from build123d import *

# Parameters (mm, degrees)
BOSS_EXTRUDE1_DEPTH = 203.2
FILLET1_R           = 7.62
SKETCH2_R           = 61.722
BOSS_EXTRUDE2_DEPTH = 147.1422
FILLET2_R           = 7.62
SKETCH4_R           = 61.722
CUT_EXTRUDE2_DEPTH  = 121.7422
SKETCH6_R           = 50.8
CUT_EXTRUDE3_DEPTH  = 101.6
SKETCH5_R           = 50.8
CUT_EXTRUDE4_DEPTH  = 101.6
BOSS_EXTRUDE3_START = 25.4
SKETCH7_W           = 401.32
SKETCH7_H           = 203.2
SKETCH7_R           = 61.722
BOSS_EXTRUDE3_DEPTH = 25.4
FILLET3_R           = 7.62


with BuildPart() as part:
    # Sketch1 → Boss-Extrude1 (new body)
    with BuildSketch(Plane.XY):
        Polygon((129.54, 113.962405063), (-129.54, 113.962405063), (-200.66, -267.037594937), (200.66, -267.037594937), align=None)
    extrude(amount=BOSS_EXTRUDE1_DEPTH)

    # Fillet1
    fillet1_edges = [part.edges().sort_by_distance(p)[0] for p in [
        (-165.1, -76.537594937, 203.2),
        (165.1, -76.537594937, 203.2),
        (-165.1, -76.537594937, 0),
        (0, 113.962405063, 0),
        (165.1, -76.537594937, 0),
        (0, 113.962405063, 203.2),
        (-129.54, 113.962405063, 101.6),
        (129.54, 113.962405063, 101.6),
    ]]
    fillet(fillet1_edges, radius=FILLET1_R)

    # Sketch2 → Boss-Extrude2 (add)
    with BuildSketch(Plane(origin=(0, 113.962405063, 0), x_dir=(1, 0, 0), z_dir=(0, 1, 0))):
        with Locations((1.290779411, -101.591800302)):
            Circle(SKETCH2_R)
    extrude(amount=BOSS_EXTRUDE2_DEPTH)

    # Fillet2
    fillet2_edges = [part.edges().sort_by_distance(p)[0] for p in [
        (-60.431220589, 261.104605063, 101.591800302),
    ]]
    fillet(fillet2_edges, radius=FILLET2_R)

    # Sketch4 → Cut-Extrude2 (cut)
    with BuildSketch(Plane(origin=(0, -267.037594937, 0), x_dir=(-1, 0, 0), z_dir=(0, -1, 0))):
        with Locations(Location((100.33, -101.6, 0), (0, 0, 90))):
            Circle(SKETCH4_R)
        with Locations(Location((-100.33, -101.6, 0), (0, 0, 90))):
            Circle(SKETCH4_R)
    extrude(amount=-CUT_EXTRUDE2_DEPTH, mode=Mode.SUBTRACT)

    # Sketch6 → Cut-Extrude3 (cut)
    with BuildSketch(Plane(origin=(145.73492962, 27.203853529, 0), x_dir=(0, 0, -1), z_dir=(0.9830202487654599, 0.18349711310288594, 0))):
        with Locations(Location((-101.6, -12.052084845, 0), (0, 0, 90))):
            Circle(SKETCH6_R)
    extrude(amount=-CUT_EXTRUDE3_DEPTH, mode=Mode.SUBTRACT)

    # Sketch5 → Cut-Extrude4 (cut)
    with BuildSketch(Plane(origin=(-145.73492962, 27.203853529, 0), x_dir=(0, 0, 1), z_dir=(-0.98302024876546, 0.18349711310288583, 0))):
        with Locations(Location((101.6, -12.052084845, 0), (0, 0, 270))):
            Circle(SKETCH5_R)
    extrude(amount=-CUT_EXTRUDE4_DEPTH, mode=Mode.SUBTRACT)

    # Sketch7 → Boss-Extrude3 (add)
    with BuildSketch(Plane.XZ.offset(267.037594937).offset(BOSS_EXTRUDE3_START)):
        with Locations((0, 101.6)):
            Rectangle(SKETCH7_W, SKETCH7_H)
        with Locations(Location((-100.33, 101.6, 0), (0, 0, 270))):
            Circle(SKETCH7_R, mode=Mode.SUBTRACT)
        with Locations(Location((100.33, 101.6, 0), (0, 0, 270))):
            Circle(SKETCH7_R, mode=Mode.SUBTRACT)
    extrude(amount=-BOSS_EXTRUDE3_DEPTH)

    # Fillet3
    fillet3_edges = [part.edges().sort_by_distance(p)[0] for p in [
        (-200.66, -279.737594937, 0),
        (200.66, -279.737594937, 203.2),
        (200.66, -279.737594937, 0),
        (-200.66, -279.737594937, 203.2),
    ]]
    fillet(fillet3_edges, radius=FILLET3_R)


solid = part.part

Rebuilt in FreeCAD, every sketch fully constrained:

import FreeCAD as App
import Part
import Sketcher

V = App.Vector
Q = App.Units.Quantity


def edges_at(feature, points):
    """Names of the edges that pass closest to the given points."""
    edges = feature.Shape.Edges
    near = lambda p: min(range(len(edges)), key=lambda i: edges[i].distToShape(Part.Vertex(*p))[0])
    return sorted({f"Edge{near(p) + 1}" for p in points})


def add_polygon(sketch, points):
    """Adds a closed chain of lines whose ends are joined by coincident constraints."""
    first, n = sketch.GeometryCount, len(points)
    for a, b in zip(points, points[1:] + points[:1]):
        sketch.addGeometry(Part.LineSegment(App.Vector(*a, 0), App.Vector(*b, 0)), False)
    for i in range(n):
        sketch.addConstraint(Sketcher.Constraint("Coincident", first + i, 2, first + (i + 1) % n, 1))

doc = App.newDocument("Part")
body = doc.addObject("PartDesign::Body", "Body")

sketch1 = doc.addObject("Sketcher::SketchObject", "Sketch")
body.addObject(sketch1)
sketch1.AttachmentSupport = (doc.XY_Plane, [""])
sketch1.MapMode = "FlatFace"
add_polygon(sketch1, [(130, 114), (-130, 114), (-201, -267), (201, -267)])
sketch1.addConstraint([
    Sketcher.Constraint("Horizontal", 0),
    Sketcher.Constraint("Horizontal", 2),
    Sketcher.Constraint("Equal", 1, 3),
    Sketcher.Constraint("DistanceX", 0, 2, 0, 1, Q("10.2 in")),
    Sketcher.Constraint("DistanceX", 2, 1, 2, 2, Q("15.8 in")),
    Sketcher.Constraint("DistanceY", 1, 2, 0, 2, Q("15 in")),
    Sketcher.Constraint("DistanceX", 0, 2, -1, 1, Q("5.1 in")),
    Sketcher.Constraint("DistanceY", -1, 1, 0, 2, 113.962405),
])
pad1 = doc.addObject("PartDesign::Pad", "Pad")
body.addObject(pad1)
pad1.Profile = sketch1
pad1.Length = Q("8 in")
doc.recompute()

fillet = doc.addObject("PartDesign::Fillet", "Fillet")
body.addObject(fillet)
fillet.Base = (pad1, edges_at(pad1, [
    (-165.1, -76.538, 203.2),
    (165.1, -76.538, 203.2),
    (-165.1, -76.538, 0),
    (0, 113.962, 0),
    (165.1, -76.538, 0),
    (0, 113.962, 203.2),
    (-129.54, 113.962, 101.6),
    (129.54, 113.962, 101.6),
]))
fillet.Radius = Q("0.3 in")

sketch2 = doc.addObject("Sketcher::SketchObject", "Sketch001")
body.addObject(sketch2)
sketch2.AttachmentSupport = (doc.XZ_Plane, [""])
sketch2.MapMode = "FlatFace"
sketch2.AttachmentOffset = App.Placement(V(0, 0, -113.962405), App.Rotation())
sketch2.addGeometry(Part.Circle(V(1, 102, 0), V(0, 0, 1), 62), False)
sketch2.addConstraint([
    Sketcher.Constraint("Diameter", 0, Q("4.86 in")),
    Sketcher.Constraint("DistanceY", -1, 1, 0, 3, 101.5918),
    Sketcher.Constraint("DistanceX", -1, 1, 0, 3, 1.290779),
])
pad2 = doc.addObject("PartDesign::Pad", "Pad001")
body.addObject(pad2)
pad2.Profile = sketch2
pad2.Length = Q("5.793 in")
pad2.Reversed = True
doc.recompute()

fillet2 = doc.addObject("PartDesign::Fillet", "Fillet001")
body.addObject(fillet2)
fillet2.Base = (pad2, edges_at(pad2, [(-60.431, 261.105, 101.592)]))
fillet2.Radius = Q("0.3 in")

sketch3 = doc.addObject("Sketcher::SketchObject", "Sketch002")
body.addObject(sketch3)
sketch3.AttachmentSupport = (doc.XZ_Plane, [""])
sketch3.MapMode = "FlatFace"
sketch3.AttachmentOffset = App.Placement(V(0, 0, 267.037595), App.Rotation())
sketch3.addGeometry([
    Part.Circle(V(-100, 102, 0), V(0, 0, 1), 62),
    Part.Circle(V(100, 102, 0), V(0, 0, 1), 62),
], False)
sketch3.addConstraint([
    Sketcher.Constraint("Equal", 0, 1),
    Sketcher.Constraint("Symmetric", 0, 3, 1, 3, -2),
    Sketcher.Constraint("Diameter", 0, Q("4.86 in")),
    Sketcher.Constraint("DistanceY", -1, 1, 0, 3, Q("4 in")),
    Sketcher.Constraint("DistanceX", 0, 3, 1, 3, Q("7.9 in")),
])
pocket1 = doc.addObject("PartDesign::Pocket", "Pocket")
body.addObject(pocket1)
pocket1.Profile = sketch3
pocket1.Length = Q("4.793 in")

sketch4 = doc.addObject("Sketcher::SketchObject", "Sketch003")
body.addObject(sketch4)
sketch4.Placement = App.Placement(V(145.73493, 27.203854, 0), App.Rotation(V(0, 0, -1), V(-0.183497113, 0.983020249, 0), V(0.983020249, 0.183497113, 0), "ZXY"))
sketch4.addGeometry(Part.Circle(V(-102, -12, 0), V(0, 0, 1), 51), False)
sketch4.addConstraint([
    Sketcher.Constraint("Diameter", 0, Q("4 in")),
    Sketcher.Constraint("DistanceX", 0, 3, -1, 1, Q("4 in")),
    Sketcher.Constraint("DistanceY", 0, 3, -1, 1, 12.052085),
])
pocket2 = doc.addObject("PartDesign::Pocket", "Pocket001")
body.addObject(pocket2)
pocket2.Profile = sketch4
pocket2.Length = Q("4 in")

sketch5 = doc.addObject("Sketcher::SketchObject", "Sketch004")
body.addObject(sketch5)
sketch5.Placement = App.Placement(V(-145.73493, 27.203854, 0), App.Rotation(V(0, 0, 1), V(0.183497113, 0.983020249, 0), V(-0.983020249, 0.183497113, 0), "ZXY"))
sketch5.addGeometry(Part.Circle(V(102, -12, 0), V(0, 0, 1), 51), False)
sketch5.addConstraint([
    Sketcher.Constraint("Diameter", 0, Q("4 in")),
    Sketcher.Constraint("DistanceX", -1, 1, 0, 3, Q("4 in")),
    Sketcher.Constraint("DistanceY", 0, 3, -1, 1, 12.052085),
])
pocket3 = doc.addObject("PartDesign::Pocket", "Pocket002")
body.addObject(pocket3)
pocket3.Profile = sketch5
pocket3.Length = Q("4 in")

sketch6 = doc.addObject("Sketcher::SketchObject", "Sketch005")
body.addObject(sketch6)
sketch6.AttachmentSupport = (doc.XZ_Plane, [""])
sketch6.MapMode = "FlatFace"
sketch6.AttachmentOffset = App.Placement(V(0, 0, 292.437595), App.Rotation())
add_polygon(sketch6, [(-201, 203), (-201, 0), (201, 0), (201, 203)])
sketch6.addGeometry(Part.Circle(V(-100, 102, 0), V(0, 0, 1), 62), False)
sketch6.addGeometry(Part.Circle(V(100, 102, 0), V(0, 0, 1), 62), False)
sketch6.addConstraint([
    Sketcher.Constraint("Vertical", 0),
    Sketcher.Constraint("Horizontal", 1),
    Sketcher.Constraint("Vertical", 2),
    Sketcher.Constraint("Horizontal", 3),
    Sketcher.Constraint("Equal", 4, 5),
    Sketcher.Constraint("Symmetric", 0, 2, 1, 2, -1, 1),
    Sketcher.Constraint("Symmetric", 4, 3, 5, 3, -2),
    Sketcher.Constraint("Diameter", 4, Q("4.86 in")),
    Sketcher.Constraint("DistanceY", 0, 2, 0, 1, Q("8 in")),
    Sketcher.Constraint("DistanceX", 1, 1, 1, 2, Q("15.8 in")),
    Sketcher.Constraint("DistanceY", -1, 1, 4, 3, Q("4 in")),
    Sketcher.Constraint("DistanceX", 4, 3, 5, 3, Q("7.9 in")),
])
pad3 = doc.addObject("PartDesign::Pad", "Pad002")
body.addObject(pad3)
pad3.Profile = sketch6
pad3.Length = Q("1 in")
pad3.Reversed = True
doc.recompute()

fillet3 = doc.addObject("PartDesign::Fillet", "Fillet002")
body.addObject(fillet3)
fillet3.Base = (pad3, edges_at(pad3, [
    (-200.66, -279.738, 0),
    (200.66, -279.738, 203.2),
    (200.66, -279.738, 0),
    (-200.66, -279.738, 203.2),
]))
fillet3.Radius = Q("0.3 in")

doc.recompute()
